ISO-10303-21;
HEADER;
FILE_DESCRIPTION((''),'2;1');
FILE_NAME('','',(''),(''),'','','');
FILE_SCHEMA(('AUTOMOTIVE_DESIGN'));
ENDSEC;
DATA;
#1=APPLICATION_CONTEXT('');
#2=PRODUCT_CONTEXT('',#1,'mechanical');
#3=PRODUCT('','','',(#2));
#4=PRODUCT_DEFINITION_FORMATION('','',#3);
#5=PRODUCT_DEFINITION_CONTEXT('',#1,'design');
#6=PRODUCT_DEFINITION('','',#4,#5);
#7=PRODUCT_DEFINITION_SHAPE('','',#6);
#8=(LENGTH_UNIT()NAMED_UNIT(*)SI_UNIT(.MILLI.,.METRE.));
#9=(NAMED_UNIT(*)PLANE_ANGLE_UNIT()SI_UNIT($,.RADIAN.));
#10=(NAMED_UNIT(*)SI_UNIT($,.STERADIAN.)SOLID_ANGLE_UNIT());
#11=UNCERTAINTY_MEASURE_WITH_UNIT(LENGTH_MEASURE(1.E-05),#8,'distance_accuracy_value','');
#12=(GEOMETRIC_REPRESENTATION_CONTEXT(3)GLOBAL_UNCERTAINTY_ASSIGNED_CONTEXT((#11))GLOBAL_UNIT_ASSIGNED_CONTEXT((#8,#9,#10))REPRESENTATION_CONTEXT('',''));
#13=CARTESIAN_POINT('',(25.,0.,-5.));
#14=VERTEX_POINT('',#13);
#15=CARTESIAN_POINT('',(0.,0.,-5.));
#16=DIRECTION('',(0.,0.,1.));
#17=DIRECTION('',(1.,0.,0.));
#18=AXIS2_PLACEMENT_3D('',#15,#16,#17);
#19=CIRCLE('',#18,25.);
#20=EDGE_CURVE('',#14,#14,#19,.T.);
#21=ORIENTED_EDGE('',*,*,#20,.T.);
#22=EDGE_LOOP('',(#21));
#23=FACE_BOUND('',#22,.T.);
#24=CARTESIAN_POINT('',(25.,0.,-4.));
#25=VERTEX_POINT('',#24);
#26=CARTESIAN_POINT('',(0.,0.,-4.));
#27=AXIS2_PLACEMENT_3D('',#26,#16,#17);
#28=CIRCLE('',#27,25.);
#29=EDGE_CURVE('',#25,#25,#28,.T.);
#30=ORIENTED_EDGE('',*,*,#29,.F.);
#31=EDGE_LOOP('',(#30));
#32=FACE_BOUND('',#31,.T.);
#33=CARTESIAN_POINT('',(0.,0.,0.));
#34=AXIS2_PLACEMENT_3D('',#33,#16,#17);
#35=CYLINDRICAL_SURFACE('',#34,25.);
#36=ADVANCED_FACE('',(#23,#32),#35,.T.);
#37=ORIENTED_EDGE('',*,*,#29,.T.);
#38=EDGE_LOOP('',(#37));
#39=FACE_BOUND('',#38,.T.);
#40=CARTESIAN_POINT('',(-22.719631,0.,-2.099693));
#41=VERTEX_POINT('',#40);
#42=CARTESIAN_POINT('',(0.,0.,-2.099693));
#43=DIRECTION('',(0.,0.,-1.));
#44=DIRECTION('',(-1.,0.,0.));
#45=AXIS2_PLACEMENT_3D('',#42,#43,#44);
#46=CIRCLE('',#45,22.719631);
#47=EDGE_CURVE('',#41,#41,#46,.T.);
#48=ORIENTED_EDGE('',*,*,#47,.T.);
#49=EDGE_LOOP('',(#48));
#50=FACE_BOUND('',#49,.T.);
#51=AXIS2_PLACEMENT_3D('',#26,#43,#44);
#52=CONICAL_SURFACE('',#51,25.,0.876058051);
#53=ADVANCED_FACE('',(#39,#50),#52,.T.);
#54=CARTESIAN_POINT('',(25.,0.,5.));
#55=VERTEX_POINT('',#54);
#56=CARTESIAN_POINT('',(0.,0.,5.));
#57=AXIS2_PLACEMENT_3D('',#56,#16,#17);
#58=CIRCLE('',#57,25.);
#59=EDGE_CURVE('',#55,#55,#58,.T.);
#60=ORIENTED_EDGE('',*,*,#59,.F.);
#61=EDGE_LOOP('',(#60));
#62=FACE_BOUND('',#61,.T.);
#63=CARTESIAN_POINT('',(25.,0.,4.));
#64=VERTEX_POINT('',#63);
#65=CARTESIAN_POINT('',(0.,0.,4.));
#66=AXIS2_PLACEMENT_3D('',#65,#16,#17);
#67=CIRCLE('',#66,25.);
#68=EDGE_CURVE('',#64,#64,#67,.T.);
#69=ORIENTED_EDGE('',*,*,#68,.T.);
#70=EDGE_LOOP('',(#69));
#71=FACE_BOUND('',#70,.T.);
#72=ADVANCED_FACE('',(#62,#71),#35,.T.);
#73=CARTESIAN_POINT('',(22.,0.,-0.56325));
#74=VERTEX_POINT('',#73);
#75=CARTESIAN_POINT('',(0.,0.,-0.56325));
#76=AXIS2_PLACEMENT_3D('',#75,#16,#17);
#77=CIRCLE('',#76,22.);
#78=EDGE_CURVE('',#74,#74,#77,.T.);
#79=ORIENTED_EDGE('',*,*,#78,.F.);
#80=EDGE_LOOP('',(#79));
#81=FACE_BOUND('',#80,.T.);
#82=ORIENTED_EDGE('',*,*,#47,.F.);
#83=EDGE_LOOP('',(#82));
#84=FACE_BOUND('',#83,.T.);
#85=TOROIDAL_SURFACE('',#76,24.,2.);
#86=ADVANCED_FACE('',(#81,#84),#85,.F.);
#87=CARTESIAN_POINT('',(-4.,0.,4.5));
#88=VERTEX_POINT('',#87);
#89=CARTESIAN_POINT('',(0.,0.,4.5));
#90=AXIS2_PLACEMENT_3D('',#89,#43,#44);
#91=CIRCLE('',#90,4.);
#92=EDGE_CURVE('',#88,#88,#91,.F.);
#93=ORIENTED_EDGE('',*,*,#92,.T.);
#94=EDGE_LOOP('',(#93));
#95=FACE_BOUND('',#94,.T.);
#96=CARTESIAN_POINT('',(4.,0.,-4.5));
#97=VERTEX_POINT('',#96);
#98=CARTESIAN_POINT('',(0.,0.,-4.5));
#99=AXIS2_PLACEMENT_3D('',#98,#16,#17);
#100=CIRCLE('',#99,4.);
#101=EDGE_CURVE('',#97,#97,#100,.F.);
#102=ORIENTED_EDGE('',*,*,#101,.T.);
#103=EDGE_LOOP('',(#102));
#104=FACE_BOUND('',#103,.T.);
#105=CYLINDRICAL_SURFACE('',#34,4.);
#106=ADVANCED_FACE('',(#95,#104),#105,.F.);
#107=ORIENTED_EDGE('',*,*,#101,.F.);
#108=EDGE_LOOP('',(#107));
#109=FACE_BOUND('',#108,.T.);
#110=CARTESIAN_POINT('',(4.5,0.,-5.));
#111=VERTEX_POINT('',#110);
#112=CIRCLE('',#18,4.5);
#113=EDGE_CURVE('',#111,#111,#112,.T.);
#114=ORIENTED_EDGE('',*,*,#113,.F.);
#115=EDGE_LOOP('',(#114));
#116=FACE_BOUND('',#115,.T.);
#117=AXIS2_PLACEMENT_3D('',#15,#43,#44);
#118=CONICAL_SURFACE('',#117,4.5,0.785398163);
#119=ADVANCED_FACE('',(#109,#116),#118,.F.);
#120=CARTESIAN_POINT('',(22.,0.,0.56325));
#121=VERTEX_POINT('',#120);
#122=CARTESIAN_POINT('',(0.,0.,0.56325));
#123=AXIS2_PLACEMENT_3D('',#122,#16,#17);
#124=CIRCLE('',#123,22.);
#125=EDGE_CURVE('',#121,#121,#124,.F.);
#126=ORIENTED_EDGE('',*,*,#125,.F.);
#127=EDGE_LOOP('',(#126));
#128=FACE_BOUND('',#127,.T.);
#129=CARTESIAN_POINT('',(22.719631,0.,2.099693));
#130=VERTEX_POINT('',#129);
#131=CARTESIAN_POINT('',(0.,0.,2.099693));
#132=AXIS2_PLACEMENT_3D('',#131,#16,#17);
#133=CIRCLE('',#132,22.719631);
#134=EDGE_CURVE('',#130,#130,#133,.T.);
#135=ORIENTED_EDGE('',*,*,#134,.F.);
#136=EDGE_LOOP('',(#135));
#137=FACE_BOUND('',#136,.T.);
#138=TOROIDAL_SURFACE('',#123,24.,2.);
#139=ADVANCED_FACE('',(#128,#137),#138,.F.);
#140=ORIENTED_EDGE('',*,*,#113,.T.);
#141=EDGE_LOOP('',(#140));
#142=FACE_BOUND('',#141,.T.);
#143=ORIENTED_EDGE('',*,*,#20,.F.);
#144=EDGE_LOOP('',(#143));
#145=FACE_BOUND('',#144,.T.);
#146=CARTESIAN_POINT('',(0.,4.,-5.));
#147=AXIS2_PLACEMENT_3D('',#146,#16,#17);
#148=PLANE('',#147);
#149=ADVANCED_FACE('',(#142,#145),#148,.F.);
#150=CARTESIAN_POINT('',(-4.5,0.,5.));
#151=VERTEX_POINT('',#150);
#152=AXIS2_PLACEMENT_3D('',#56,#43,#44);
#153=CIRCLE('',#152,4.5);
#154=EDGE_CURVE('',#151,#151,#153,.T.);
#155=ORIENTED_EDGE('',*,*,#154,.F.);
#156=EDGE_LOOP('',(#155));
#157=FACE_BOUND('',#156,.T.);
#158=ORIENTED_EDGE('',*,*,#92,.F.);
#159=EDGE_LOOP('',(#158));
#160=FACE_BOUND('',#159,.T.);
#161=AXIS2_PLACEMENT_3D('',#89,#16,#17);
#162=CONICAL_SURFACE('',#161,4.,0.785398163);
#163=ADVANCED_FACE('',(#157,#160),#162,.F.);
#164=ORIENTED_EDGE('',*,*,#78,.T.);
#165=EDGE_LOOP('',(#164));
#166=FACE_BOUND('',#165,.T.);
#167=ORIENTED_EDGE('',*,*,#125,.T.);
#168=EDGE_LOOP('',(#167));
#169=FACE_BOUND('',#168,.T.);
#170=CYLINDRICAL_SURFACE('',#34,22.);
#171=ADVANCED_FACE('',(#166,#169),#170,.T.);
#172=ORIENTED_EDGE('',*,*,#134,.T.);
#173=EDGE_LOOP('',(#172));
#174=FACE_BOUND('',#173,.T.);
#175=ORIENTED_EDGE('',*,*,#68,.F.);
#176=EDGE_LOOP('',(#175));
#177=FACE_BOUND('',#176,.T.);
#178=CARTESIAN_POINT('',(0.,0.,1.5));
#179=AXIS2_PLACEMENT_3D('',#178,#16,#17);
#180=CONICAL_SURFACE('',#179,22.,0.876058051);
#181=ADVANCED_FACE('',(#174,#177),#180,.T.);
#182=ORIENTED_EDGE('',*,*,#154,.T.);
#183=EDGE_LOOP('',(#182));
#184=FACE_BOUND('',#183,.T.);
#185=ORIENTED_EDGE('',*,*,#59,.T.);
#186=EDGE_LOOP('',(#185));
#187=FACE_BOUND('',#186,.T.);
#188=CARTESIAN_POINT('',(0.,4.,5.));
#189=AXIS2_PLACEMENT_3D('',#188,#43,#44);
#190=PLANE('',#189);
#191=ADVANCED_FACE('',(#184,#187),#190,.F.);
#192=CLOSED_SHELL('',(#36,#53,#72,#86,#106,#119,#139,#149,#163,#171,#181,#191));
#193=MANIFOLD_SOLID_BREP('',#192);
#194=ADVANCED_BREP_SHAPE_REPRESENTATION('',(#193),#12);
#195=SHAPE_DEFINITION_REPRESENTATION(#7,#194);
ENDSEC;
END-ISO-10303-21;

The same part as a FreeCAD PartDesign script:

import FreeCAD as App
import Part
import Sketcher
Q = App.Units.Quantity


def edges_at(feature, points):
    """Names of the edges that pass closest to the given points."""
    edges = feature.Shape.Edges
    near = lambda p: min(range(len(edges)), key=lambda i: edges[i].distToShape(Part.Vertex(*p))[0])
    return sorted({f"Edge{near(p) + 1}" for p in points})

doc = App.newDocument("Part")
params = doc.addObject("Spreadsheet::Sheet", "Params")
for row, (alias, value) in enumerate([
    ("sketch1_width", "21 mm"),
    ("sketch1_height", "10 mm"),
    ("sketch1_height2", "1 mm"),
    ("sketch1_height3", "3 mm"),
    ("revolution_angle", "360 deg"),
    ("fillet_radius", "2 mm"),
    ("chamfer_size", "0.5 mm"),
], start=1):
    params.set(f"A{row}", alias)
    params.set(f"B{row}", "=" + value)
    params.setAlias(f"B{row}", alias)

body = doc.addObject("PartDesign::Body", "Body")

# Sketch on YZ plane
sketch1 = doc.addObject("Sketcher::SketchObject", "Sketch")
body.addObject(sketch1)
sketch1.AttachmentSupport = (doc.YZ_Plane, [""])
sketch1.MapMode = "FlatFace"
sketch1.addGeometry(Part.LineSegment(App.Vector(4, 5, 0), App.Vector(4, -5, 0)), False)
sketch1.addGeometry(Part.LineSegment(App.Vector(4, -5, 0), App.Vector(25, -5, 0)), False)
sketch1.addGeometry(Part.LineSegment(App.Vector(25, -5, 0), App.Vector(25, -4, 0)), False)
sketch1.addGeometry(Part.LineSegment(App.Vector(25, -4, 0), App.Vector(22, -1.5, 0)), False)
sketch1.addGeometry(Part.LineSegment(App.Vector(22, -1.5, 0), App.Vector(22, 1.5, 0)), False)
sketch1.addGeometry(Part.LineSegment(App.Vector(22, 1.5, 0), App.Vector(25, 4, 0)), False)
sketch1.addGeometry(Part.LineSegment(App.Vector(25, 4, 0), App.Vector(25, 5, 0)), False)
sketch1.addGeometry(Part.LineSegment(App.Vector(25, 5, 0), App.Vector(4, 5, 0)), False)
sketch1.addConstraint(Sketcher.Constraint("Coincident", 0, 2, 1, 1))
sketch1.addConstraint(Sketcher.Constraint("Coincident", 1, 2, 2, 1))
sketch1.addConstraint(Sketcher.Constraint("Coincident", 2, 2, 3, 1))
sketch1.addConstraint(Sketcher.Constraint("Coincident", 3, 2, 4, 1))
sketch1.addConstraint(Sketcher.Constraint("Coincident", 4, 2, 5, 1))
sketch1.addConstraint(Sketcher.Constraint("Coincident", 5, 2, 6, 1))
sketch1.addConstraint(Sketcher.Constraint("Coincident", 6, 2, 7, 1))
sketch1.addConstraint(Sketcher.Constraint("Coincident", 7, 2, 0, 1))
sketch1.addConstraint(Sketcher.Constraint("Vertical", 0))
sketch1.addConstraint(Sketcher.Constraint("Horizontal", 1))
sketch1.addConstraint(Sketcher.Constraint("Vertical", 2))
sketch1.addConstraint(Sketcher.Constraint("Vertical", 4))
sketch1.addConstraint(Sketcher.Constraint("Vertical", 6))
sketch1.addConstraint(Sketcher.Constraint("Horizontal", 7))
sketch1.addConstraint(Sketcher.Constraint("Symmetric", 2, 2, 5, 2, -1))
sketch1.addConstraint(Sketcher.Constraint("Equal", 2, 6))
sketch1.addConstraint(Sketcher.Constraint("Equal", 3, 5))
sketch1.addConstraint(Sketcher.Constraint("DistanceX", 1, 1, 1, 2, Q("21 mm")))
sketch1.addConstraint(Sketcher.Constraint("DistanceY", 0, 2, 0, 1, Q("10 mm")))
sketch1.addConstraint(Sketcher.Constraint("DistanceY", 2, 1, 2, 2, Q("1 mm")))
sketch1.addConstraint(Sketcher.Constraint("DistanceY", 4, 1, 4, 2, Q("3 mm")))
sketch1.addConstraint(Sketcher.Constraint("DistanceX", -1, 1, 0, 2, Q("4 mm")))
sketch1.addConstraint(Sketcher.Constraint("DistanceX", -1, 1, 3, 2, Q("22 mm")))
sketch1.setExpression("Constraints[17]", "Params.sketch1_width")
sketch1.setExpression("Constraints[18]", "Params.sketch1_height")
sketch1.setExpression("Constraints[19]", "Params.sketch1_height2")
sketch1.setExpression("Constraints[20]", "Params.sketch1_height3")
revolution = doc.addObject("PartDesign::Revolution", "Revolution")
body.addObject(revolution)
revolution.Profile = sketch1
revolution.ReferenceAxis = (sketch1, ["V_Axis"])
revolution.setExpression("Angle", "Params.revolution_angle")
doc.recompute()

fillet = doc.addObject("PartDesign::Fillet", "Fillet")
body.addObject(fillet)
fillet.Base = (revolution, edges_at(revolution, [(-22, 0, -1.5), (-22, 0, 1.5)]))
fillet.setExpression("Radius", "Params.fillet_radius")
doc.recompute()

chamfer = doc.addObject("PartDesign::Chamfer", "Chamfer")
body.addObject(chamfer)
chamfer.Base = (fillet, edges_at(fillet, [(-4, 0, 5), (-4, 0, -5)]))
chamfer.setExpression("Size", "Params.chamfer_size")

doc.recompute()
